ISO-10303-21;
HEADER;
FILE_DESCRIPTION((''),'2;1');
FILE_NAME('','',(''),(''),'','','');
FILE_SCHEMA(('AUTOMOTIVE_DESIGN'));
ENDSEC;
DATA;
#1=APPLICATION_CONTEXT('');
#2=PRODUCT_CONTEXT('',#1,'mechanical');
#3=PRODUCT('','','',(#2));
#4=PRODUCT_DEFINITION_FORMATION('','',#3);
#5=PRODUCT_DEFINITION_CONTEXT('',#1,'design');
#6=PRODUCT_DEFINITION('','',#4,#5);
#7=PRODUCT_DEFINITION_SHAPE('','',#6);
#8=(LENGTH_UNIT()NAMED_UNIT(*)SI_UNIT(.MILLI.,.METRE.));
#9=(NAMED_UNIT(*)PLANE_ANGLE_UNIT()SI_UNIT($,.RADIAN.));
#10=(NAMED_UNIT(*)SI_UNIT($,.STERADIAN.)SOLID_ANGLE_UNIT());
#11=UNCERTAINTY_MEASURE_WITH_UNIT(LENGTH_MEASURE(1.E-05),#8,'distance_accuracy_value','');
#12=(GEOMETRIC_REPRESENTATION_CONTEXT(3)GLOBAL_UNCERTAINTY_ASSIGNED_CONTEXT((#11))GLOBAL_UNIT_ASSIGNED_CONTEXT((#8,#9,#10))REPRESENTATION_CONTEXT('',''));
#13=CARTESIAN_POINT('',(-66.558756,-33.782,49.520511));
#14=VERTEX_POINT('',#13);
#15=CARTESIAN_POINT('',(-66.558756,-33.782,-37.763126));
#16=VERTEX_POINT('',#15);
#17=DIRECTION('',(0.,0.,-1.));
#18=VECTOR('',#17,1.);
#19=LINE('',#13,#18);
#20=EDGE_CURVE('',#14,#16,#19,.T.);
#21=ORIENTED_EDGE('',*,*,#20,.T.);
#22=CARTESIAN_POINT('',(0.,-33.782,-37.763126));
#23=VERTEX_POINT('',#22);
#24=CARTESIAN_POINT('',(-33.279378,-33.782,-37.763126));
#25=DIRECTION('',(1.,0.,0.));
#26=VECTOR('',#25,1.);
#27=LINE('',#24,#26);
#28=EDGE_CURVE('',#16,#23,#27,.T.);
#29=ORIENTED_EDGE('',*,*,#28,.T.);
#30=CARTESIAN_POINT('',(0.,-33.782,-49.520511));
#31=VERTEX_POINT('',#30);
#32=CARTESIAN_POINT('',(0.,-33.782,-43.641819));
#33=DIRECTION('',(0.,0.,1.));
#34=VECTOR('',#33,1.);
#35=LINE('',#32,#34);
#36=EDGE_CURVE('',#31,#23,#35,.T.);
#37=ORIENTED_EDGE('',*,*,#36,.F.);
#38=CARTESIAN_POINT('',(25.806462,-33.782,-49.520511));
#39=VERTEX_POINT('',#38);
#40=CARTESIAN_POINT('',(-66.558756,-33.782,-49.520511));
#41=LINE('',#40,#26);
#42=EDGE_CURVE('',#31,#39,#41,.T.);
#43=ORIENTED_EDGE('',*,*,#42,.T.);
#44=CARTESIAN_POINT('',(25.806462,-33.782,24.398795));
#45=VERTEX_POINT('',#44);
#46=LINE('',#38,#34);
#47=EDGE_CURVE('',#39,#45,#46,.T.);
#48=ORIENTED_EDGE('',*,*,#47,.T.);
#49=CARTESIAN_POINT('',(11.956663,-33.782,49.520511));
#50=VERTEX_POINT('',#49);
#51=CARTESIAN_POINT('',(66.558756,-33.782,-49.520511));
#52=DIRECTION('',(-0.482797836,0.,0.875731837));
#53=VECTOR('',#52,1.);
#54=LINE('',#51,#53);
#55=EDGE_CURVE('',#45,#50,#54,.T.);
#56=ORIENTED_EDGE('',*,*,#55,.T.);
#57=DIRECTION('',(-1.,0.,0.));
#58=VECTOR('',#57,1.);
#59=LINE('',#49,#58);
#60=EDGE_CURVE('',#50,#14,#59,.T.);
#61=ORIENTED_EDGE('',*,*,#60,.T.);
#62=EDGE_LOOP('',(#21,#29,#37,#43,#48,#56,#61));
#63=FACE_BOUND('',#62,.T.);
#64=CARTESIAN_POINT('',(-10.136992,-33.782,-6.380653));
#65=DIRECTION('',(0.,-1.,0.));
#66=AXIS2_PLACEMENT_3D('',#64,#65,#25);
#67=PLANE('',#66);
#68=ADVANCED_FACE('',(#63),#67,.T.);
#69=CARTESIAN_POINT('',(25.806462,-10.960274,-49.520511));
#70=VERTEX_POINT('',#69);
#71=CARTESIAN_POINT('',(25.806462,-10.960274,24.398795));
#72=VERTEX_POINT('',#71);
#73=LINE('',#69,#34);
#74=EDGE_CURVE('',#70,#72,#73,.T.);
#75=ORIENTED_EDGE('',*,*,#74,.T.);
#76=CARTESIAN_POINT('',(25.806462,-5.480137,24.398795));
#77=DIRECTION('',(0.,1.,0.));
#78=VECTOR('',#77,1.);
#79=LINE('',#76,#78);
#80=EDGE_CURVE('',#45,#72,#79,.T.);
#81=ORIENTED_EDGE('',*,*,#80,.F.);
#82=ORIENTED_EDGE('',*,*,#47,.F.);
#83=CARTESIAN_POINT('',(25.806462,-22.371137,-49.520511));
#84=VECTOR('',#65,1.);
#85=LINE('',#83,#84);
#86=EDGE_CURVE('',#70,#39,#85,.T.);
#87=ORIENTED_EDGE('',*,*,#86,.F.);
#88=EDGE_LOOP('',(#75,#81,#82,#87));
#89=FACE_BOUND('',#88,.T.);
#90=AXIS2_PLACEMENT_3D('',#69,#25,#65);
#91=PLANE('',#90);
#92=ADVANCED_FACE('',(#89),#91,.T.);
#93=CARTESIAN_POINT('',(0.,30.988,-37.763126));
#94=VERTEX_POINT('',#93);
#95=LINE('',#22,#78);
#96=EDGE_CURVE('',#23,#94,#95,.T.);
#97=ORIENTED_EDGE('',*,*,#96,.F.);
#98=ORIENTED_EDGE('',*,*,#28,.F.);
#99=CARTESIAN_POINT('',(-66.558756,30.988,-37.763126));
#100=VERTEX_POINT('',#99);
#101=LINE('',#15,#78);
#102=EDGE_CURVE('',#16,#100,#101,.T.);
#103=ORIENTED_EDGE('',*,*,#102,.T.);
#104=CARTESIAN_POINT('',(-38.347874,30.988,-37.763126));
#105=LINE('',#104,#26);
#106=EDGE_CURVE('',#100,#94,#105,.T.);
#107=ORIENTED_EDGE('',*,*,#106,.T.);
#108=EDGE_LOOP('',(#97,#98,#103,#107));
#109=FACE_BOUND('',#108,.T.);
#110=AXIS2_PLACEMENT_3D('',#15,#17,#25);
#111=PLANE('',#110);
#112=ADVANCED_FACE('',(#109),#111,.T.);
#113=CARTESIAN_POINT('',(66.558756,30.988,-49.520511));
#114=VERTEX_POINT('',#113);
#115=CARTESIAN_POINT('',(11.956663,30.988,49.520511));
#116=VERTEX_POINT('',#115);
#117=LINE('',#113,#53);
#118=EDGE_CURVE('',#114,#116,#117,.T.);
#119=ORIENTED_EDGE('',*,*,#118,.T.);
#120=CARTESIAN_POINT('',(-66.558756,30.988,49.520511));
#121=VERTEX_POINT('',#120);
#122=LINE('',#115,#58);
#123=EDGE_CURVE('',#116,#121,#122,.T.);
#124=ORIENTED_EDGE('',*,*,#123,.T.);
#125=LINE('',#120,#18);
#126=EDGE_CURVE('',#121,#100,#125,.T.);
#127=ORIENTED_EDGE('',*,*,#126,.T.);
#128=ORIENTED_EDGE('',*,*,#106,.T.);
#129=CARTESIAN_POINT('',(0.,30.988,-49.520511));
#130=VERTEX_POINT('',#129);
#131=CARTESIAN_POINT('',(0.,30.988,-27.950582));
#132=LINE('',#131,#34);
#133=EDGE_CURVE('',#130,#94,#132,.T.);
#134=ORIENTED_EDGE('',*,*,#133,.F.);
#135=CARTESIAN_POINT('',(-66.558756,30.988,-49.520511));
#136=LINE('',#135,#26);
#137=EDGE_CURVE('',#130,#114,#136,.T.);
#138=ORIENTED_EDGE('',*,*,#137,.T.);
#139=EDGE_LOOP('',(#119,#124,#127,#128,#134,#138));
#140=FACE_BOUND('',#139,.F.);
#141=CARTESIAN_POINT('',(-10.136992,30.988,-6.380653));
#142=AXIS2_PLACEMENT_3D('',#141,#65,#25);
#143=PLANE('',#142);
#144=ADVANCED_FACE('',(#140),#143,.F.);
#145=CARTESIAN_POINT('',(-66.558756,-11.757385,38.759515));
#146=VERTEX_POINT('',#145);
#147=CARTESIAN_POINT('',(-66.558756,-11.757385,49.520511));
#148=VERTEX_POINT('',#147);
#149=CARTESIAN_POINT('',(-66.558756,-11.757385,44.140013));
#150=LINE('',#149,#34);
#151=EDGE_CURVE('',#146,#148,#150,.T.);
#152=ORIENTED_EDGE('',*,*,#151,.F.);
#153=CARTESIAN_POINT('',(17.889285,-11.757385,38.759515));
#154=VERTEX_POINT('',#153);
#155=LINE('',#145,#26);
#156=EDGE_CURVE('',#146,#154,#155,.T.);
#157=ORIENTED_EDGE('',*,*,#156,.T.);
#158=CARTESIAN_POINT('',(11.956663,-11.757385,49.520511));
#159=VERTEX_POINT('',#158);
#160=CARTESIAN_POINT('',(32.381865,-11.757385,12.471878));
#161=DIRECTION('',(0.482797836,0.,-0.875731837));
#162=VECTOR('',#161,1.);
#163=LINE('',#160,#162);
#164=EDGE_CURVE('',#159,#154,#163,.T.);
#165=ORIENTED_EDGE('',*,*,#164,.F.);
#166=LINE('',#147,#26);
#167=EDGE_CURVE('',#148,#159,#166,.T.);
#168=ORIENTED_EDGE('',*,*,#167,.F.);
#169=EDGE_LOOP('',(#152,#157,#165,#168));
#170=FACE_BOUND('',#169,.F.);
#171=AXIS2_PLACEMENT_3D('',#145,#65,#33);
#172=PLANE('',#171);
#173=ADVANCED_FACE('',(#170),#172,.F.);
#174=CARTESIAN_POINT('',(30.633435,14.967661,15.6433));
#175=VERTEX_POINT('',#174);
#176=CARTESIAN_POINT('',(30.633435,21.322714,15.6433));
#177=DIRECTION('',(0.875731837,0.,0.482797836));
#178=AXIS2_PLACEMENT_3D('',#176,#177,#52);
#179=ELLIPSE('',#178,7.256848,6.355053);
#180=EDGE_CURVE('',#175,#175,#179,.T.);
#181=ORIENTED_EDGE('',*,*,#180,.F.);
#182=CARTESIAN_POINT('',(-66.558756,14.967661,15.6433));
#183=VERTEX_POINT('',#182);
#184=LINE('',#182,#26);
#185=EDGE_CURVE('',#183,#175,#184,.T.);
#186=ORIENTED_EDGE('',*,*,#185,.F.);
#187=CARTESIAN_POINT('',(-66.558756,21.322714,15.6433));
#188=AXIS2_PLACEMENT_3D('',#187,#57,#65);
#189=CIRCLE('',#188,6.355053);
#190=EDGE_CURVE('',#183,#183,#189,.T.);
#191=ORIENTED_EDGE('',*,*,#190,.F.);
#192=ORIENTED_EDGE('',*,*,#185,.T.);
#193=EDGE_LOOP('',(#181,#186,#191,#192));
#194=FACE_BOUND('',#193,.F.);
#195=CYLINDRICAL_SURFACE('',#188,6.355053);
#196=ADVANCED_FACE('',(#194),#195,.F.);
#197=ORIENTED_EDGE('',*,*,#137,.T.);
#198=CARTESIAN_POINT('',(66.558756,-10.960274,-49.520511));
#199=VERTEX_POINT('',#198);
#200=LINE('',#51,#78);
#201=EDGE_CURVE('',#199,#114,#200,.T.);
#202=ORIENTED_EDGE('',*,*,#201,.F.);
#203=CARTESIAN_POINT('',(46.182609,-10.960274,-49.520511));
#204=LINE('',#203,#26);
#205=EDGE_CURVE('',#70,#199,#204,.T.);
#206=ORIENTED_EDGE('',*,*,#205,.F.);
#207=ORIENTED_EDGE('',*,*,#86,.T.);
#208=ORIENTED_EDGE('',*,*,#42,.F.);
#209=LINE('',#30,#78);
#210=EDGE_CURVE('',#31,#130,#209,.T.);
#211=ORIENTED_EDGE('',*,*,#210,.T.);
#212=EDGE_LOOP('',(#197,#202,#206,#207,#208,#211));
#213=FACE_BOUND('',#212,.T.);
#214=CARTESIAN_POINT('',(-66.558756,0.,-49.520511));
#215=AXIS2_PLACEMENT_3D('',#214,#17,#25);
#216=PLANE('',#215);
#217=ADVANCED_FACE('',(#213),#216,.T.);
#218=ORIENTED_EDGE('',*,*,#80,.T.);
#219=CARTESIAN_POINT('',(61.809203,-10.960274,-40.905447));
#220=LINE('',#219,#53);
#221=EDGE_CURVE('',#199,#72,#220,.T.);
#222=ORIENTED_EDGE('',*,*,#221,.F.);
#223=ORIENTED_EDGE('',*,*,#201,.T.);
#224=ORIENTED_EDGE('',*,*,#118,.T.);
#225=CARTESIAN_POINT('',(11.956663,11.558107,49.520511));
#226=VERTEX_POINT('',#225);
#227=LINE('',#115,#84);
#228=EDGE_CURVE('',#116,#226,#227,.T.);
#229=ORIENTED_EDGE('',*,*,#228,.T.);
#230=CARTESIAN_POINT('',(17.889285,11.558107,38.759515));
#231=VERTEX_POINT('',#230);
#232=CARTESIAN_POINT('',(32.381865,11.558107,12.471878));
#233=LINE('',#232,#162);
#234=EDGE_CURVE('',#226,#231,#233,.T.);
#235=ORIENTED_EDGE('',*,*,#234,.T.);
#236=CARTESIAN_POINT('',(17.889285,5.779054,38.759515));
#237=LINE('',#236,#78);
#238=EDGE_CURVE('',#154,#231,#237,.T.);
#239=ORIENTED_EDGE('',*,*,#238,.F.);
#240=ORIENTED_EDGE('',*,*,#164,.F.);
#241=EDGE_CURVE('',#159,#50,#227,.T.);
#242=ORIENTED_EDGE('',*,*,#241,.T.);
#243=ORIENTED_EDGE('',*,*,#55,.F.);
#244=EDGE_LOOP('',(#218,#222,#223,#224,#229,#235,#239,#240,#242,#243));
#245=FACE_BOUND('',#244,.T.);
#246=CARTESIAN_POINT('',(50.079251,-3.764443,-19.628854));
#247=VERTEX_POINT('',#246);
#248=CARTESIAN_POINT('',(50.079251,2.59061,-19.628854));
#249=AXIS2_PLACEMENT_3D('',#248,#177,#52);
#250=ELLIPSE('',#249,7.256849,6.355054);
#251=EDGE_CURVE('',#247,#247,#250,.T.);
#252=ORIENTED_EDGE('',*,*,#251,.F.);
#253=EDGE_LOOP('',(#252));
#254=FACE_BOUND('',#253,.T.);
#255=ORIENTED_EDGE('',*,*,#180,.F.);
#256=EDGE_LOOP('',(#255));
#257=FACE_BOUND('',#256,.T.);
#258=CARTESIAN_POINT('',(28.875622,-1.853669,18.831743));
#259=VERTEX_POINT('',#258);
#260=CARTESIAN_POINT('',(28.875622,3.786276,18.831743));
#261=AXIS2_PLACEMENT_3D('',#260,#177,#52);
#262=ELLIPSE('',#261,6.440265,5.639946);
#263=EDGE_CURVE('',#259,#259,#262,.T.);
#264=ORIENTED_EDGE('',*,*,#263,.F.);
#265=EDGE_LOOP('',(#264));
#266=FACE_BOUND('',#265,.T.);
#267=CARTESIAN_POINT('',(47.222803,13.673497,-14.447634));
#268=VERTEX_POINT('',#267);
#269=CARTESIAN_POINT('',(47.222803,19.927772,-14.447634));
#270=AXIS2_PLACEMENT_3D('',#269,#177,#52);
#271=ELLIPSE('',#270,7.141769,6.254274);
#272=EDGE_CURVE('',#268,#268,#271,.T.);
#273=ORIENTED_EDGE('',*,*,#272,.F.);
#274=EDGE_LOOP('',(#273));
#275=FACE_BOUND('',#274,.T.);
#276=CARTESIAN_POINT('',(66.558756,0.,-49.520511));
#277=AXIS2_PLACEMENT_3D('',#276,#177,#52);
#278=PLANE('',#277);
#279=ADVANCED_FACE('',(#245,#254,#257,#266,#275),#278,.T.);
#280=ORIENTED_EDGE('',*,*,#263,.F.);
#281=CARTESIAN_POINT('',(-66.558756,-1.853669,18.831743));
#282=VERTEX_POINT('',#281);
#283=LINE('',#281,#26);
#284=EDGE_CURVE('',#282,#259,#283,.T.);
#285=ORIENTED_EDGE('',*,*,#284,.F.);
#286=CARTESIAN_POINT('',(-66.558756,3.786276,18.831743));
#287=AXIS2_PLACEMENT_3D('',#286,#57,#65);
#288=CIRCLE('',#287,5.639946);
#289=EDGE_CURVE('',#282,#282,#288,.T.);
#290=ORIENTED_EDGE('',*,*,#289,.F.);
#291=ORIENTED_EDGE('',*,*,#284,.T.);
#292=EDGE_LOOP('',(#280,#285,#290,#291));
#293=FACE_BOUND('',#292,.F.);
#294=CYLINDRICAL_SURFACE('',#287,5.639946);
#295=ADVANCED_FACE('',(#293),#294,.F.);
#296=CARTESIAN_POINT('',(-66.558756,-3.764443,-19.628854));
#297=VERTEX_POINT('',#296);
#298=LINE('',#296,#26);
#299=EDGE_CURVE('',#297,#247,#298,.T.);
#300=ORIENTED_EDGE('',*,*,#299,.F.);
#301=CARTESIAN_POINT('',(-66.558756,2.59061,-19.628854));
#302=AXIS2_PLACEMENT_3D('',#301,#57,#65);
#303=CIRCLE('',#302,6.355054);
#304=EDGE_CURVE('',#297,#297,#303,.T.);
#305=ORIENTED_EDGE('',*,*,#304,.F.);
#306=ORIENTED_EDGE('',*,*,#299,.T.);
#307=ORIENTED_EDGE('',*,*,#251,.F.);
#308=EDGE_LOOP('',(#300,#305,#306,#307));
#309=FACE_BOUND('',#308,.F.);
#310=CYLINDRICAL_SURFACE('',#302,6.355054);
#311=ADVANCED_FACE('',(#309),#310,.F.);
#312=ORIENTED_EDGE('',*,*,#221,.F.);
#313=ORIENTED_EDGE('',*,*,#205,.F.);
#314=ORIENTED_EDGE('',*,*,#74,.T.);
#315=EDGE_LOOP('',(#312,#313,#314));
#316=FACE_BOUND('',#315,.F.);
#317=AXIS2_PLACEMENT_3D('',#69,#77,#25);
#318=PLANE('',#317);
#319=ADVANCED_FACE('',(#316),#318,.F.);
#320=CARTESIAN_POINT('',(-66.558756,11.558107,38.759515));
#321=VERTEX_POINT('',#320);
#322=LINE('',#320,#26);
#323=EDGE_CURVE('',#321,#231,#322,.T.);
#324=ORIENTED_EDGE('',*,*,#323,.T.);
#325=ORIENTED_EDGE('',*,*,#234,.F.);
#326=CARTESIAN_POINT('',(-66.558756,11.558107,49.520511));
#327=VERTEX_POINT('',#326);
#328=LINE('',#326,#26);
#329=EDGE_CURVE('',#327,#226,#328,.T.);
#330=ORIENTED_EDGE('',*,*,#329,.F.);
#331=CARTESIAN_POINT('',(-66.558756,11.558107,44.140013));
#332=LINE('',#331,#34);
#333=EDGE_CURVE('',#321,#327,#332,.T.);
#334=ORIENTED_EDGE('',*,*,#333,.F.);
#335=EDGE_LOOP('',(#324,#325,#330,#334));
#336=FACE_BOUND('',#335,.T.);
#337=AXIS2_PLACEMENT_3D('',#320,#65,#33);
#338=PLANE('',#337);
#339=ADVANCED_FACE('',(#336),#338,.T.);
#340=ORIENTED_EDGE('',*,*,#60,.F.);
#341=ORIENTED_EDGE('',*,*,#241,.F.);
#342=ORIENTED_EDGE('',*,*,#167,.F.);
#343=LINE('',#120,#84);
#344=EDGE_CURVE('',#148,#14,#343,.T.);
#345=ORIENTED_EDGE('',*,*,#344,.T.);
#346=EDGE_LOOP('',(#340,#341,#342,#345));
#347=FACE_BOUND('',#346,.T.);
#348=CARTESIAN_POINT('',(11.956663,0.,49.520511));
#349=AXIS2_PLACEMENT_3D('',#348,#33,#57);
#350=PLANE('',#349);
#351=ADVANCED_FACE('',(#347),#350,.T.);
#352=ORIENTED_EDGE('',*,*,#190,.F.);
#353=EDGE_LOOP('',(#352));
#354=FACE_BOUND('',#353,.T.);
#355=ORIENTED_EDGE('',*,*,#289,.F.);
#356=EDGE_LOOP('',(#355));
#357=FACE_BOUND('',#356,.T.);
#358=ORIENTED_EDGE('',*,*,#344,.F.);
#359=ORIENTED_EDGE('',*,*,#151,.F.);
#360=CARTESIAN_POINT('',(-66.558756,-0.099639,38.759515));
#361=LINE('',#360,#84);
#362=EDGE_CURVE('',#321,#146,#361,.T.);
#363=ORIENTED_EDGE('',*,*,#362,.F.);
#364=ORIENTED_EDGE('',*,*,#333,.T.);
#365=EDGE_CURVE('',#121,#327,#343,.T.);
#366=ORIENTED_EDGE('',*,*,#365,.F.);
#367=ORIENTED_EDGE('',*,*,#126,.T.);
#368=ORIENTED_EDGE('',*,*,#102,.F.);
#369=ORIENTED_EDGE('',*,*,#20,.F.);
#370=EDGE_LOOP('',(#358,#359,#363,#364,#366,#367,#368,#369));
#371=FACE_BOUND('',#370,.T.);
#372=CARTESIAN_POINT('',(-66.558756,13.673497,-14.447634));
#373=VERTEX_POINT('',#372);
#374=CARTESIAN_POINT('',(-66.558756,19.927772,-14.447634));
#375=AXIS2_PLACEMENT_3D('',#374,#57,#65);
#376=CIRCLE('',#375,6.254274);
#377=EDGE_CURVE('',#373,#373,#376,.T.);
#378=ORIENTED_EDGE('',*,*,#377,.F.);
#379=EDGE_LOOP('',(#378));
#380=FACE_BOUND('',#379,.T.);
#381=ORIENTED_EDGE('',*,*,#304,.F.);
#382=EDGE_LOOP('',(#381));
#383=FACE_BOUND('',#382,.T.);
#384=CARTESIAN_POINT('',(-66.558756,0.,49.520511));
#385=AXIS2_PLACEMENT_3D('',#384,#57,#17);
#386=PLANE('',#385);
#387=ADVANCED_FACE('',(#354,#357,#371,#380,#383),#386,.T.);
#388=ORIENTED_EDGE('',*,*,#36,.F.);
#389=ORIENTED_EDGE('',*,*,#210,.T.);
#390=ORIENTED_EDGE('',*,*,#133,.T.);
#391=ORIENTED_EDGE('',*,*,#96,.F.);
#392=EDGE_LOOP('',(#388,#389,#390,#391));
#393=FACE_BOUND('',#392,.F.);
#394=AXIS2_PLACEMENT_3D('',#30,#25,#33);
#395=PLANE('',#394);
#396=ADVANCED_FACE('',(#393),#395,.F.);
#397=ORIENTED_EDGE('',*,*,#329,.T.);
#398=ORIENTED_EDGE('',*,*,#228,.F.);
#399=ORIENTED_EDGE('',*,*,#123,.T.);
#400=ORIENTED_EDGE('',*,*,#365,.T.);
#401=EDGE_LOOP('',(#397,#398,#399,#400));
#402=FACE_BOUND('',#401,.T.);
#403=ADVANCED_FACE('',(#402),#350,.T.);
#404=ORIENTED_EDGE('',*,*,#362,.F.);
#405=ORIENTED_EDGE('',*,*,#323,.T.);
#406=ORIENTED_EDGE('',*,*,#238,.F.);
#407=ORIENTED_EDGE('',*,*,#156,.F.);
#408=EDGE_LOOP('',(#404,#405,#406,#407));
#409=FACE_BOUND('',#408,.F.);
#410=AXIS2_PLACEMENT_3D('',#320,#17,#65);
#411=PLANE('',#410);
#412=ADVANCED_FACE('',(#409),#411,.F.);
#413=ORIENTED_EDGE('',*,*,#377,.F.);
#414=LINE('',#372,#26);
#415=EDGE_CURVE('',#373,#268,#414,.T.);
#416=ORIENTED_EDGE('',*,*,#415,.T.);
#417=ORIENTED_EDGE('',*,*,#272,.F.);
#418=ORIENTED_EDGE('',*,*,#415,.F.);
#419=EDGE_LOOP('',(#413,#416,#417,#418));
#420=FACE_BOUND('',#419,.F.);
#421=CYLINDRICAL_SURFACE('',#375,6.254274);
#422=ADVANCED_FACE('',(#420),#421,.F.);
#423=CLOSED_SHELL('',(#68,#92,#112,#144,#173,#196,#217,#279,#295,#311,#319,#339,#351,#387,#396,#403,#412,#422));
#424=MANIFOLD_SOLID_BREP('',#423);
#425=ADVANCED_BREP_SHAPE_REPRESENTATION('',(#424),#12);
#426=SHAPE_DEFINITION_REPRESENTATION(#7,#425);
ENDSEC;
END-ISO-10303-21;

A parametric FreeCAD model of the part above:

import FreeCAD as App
import Part
import Sketcher
Q = App.Units.Quantity


def add_polygon(sketch, points):
    """Adds a closed chain of lines whose ends are joined by coincident constraints."""
    first, n = sketch.GeometryCount, len(points)
    for a, b in zip(points, points[1:] + points[:1]):
        sketch.addGeometry(Part.LineSegment(App.Vector(*a, 0), App.Vector(*b, 0)), False)
    for i in range(n):
        sketch.addConstraint(Sketcher.Constraint("Coincident", first + i, 2, first + (i + 1) % n, 1))

doc = App.newDocument("Part")
body = doc.addObject("PartDesign::Body", "Body")

sketch1 = body.newObject("Sketcher::SketchObject", "Sketch")
sketch1.AttachmentSupport = (doc.getObject("XZ_Plane"), [""])
sketch1.MapMode = "FlatFace"
add_polygon(sketch1, [(66.558756, -49.520511), (11.956663, 49.520511), (-66.558756, 49.520511), (-66.558756, -49.520511)])
sketch1.addConstraint([
    Sketcher.Constraint("Horizontal", 1),
    Sketcher.Constraint("Vertical", 2),
    Sketcher.Constraint("Horizontal", 3),
    Sketcher.Constraint("Symmetric", 1, 2, 3, 2, -1, 1),
    Sketcher.Constraint("DistanceX", 1, 2, 1, 1, Q("78.515419 mm")),
    Sketcher.Constraint("DistanceX", 3, 1, 3, 2, Q("133.117512 mm")),
    Sketcher.Constraint("Distance", 0, Q("113.095149 mm")),
])
pad1 = body.newObject("PartDesign::Pad", "Pad")
pad1.Profile = sketch1
pad1.Type = "TwoLengths"
pad1.Length = Q("1.33 in")
pad1.Length2 = Q("1.22 in")

sketch2 = body.newObject("Sketcher::SketchObject", "Sketch001")
sketch2.AttachmentSupport = (doc.getObject("YZ_Plane"), [""])
sketch2.MapMode = "FlatFace"
sketch2.AttachmentOffset = App.Placement(App.Vector(0, 0, -66.558756), App.Rotation())
add_polygon(sketch2, [(11.558107, 49.520511), (11.558107, 38.759515), (-11.757385, 38.759515), (-11.757385, 49.520511)])
sketch2.addConstraint([
    Sketcher.Constraint("Vertical", 0),
    Sketcher.Constraint("Horizontal", 1),
    Sketcher.Constraint("Vertical", 2),
    Sketcher.Constraint("Horizontal", 3),
    Sketcher.Constraint("DistanceX", 1, 2, 1, 1, Q("23.315492 mm")),
    Sketcher.Constraint("DistanceY", 0, 2, 0, 1, Q("10.760996 mm")),
    Sketcher.Constraint("DistanceY", -1, 1, 2, 2, Q("49.520511 mm")),
    Sketcher.Constraint("DistanceX", -1, 1, 0, 2, Q("11.558107 mm")),
])
pocket1 = body.newObject("PartDesign::Pocket", "Pocket")
pocket1.Profile = sketch2
pocket1.Length = Q("5.25 in")
pocket1.Reversed = True

sketch3 = body.newObject("Sketcher::SketchObject", "Sketch002")
sketch3.AttachmentSupport = (doc.getObject("XY_Plane"), [""])
sketch3.MapMode = "FlatFace"
sketch3.AttachmentOffset = App.Placement(App.Vector(0, 0, -49.520511), App.Rotation())
add_polygon(sketch3, [(25.806462, -33.782), (25.806462, -10.960274), (66.558756, -10.960274), (66.558756, -33.782)])
sketch3.addConstraint([
    Sketcher.Constraint("Vertical", 0),
    Sketcher.Constraint("Horizontal", 1),
    Sketcher.Constraint("Vertical", 2),
    Sketcher.Constraint("Horizontal", 3),
    Sketcher.Constraint("DistanceY", 2, 2, -1, 1, Q("1.33 in")),
    Sketcher.Constraint("DistanceX", 1, 1, 1, 2, Q("40.752294 mm")),
    Sketcher.Constraint("DistanceY", 0, 1, 0, 2, Q("22.821726 mm")),
    Sketcher.Constraint("DistanceX", -1, 1, 0, 2, Q("25.806462 mm")),
])
pocket2 = body.newObject("PartDesign::Pocket", "Pocket001")
pocket2.Profile = sketch3
pocket2.Length = Q("4.48 in")
pocket2.Reversed = True

sketch4 = body.newObject("Sketcher::SketchObject", "Sketch003")
sketch4.AttachmentSupport = (doc.getObject("YZ_Plane"), [""])
sketch4.MapMode = "FlatFace"
sketch4.AttachmentOffset = App.Placement(App.Vector(0, 0, -66.558756), App.Rotation())
sketch4.addGeometry([
    Part.Circle(App.Vector(21.322714, 15.6433, 0), App.Vector(0, 0, 1), 6.355053),
    Part.Circle(App.Vector(3.786276, 18.831743, 0), App.Vector(0, 0, 1), 5.639946),
    Part.Circle(App.Vector(19.927772, -14.447634, 0), App.Vector(0, 0, 1), 6.254274),
    Part.Circle(App.Vector(2.59061, -19.628854, 0), App.Vector(0, 0, 1), 6.355054),
], False)
sketch4.addConstraint([
    Sketcher.Constraint("Equal", 0, 3),
    Sketcher.Constraint("Diameter", 1, Q("11.279891 mm")),
    Sketcher.Constraint("Diameter", 2, Q("12.508549 mm")),
    Sketcher.Constraint("Diameter", 0, Q("12.710106 mm")),
    Sketcher.Constraint("DistanceY", -1, 1, 0, 3, Q("15.6433 mm")),
    Sketcher.Constraint("DistanceX", -1, 1, 2, 3, Q("19.927772 mm")),
    Sketcher.Constraint("DistanceX", -1, 1, 3, 3, Q("2.59061 mm")),
    Sketcher.Constraint("DistanceX", 1, 3, 0, 3, Q("17.536438 mm")),
    Sketcher.Constraint("DistanceY", 3, 3, 2, 3, Q("5.18122 mm")),
    Sketcher.Constraint("DistanceX", -1, 1, 0, 3, Q("21.322714 mm")),
    Sketcher.Constraint("DistanceY", -1, 1, 1, 3, Q("18.831743 mm")),
    Sketcher.Constraint("DistanceY", 2, 3, -1, 1, Q("14.447634 mm")),
])
pocket3 = body.newObject("PartDesign::Pocket", "Pocket002")
pocket3.Profile = sketch4
pocket3.Length = Q("8.07 in")
pocket3.Reversed = True

sketch5 = body.newObject("Sketcher::SketchObject", "Sketch004")
sketch5.AttachmentSupport = (doc.getObject("XZ_Plane"), [""])
sketch5.MapMode = "FlatFace"
sketch5.AttachmentOffset = App.Placement(App.Vector(0, 0, 1.33 * 25.4), App.Rotation())
add_polygon(sketch5, [(-66.558756, -37.763126), (-66.558756, -49.520511), (0, -49.520511), (0, -37.763126)])
sketch5.addConstraint([
    Sketcher.Constraint("Vertical", 0),
    Sketcher.Constraint("Horizontal", 1),
    Sketcher.Constraint("Vertical", 2),
    Sketcher.Constraint("Horizontal", 3),
    Sketcher.Constraint("PointOnObject", 1, 2, -2),
    Sketcher.Constraint("DistanceX", 1, 1, 1, 2, Q("66.558756 mm")),
    Sketcher.Constraint("DistanceY", 0, 2, 0, 1, Q("11.757385 mm")),
    Sketcher.Constraint("DistanceY", 0, 2, -1, 1, Q("49.520511 mm")),
])
pocket4 = body.newObject("PartDesign::Pocket", "Pocket003")
pocket4.Profile = sketch5
pocket4.Length = Q("6.95 in")

doc.recompute()
